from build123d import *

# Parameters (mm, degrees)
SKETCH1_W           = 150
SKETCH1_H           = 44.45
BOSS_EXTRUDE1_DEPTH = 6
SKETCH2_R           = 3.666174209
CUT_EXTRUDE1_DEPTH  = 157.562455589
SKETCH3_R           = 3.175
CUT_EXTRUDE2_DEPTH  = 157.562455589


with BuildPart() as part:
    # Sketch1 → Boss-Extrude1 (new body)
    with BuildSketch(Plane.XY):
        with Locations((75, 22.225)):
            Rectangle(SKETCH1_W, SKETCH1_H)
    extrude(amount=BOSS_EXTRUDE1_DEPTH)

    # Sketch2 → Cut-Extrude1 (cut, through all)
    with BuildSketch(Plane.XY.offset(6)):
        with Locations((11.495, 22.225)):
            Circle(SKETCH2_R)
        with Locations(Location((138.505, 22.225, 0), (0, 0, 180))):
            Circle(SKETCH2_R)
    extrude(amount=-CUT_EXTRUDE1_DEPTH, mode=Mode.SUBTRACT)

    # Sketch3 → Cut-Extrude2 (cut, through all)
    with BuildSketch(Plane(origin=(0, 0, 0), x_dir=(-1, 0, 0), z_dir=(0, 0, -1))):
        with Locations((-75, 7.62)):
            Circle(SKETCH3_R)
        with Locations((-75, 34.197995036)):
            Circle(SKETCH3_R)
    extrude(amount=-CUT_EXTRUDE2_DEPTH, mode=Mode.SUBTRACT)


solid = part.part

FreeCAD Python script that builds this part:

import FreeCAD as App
import Part
import Sketcher

V = App.Vector
Q = App.Units.Quantity


def add_polygon(sketch, points):
    """Adds a closed chain of lines whose ends are joined by coincident constraints."""
    first, n = sketch.GeometryCount, len(points)
    for a, b in zip(points, points[1:] + points[:1]):
        sketch.addGeometry(Part.LineSegment(App.Vector(*a, 0), App.Vector(*b, 0)), False)
    for i in range(n):
        sketch.addConstraint(Sketcher.Constraint("Coincident", first + i, 2, first + (i + 1) % n, 1))

doc = App.newDocument("Part")
params = doc.addObject("Spreadsheet::Sheet", "Params")
for row, (alias, value) in enumerate([
    ("sketch1_width", "150 mm"),
    ("sketch1_height", "44.45 mm"),
    ("pad1_length", "6 mm"),
    ("sketch3_diameter", "6.35 mm"),
], start=1):
    params.set(f"A{row}", alias)
    params.set(f"B{row}", "=" + value)
    params.setAlias(f"B{row}", alias)

body = doc.addObject("PartDesign::Body", "Body")

sketch1 = body.newObject("Sketcher::SketchObject", "Sketch")
sketch1.AttachmentSupport = (doc.getObject("XY_Plane"), [""])
sketch1.MapMode = "FlatFace"
add_polygon(sketch1, [(0, 44), (0, 0), (150, 0), (150, 44)])
sketch1.addConstraint([
    Sketcher.Constraint("Vertical", 0),
    Sketcher.Constraint("Horizontal", 1),
    Sketcher.Constraint("Vertical", 2),
    Sketcher.Constraint("Horizontal", 3),
    Sketcher.Constraint("Coincident", 0, 2, -1, 1),
    Sketcher.Constraint("DistanceX", 1, 1, 1, 2, Q("150 mm")),
    Sketcher.Constraint("DistanceY", 0, 2, 0, 1, Q("44.45 mm")),
])
sketch1.setExpression("Constraints[9]", "Params.sketch1_width")
sketch1.setExpression("Constraints[10]", "Params.sketch1_height")
pad1 = body.newObject("PartDesign::Pad", "Pad")
pad1.Profile = sketch1
pad1.setExpression("Length", "Params.pad1_length")

sketch2 = body.newObject("Sketcher::SketchObject", "Sketch001")
sketch2.AttachmentSupport = (doc.getObject("XY_Plane"), [""])
sketch2.MapMode = "FlatFace"
sketch2.AttachmentOffset = App.Placement(V(0, 0, 6), App.Rotation())
sketch2.addGeometry([
    Part.Circle(V(11.5, 22.2, 0), V(0, 0, 1), 3.7),
    Part.Circle(V(138.5, 22.2, 0), V(0, 0, 1), 3.7),
], False)
sketch2.addConstraint([
    Sketcher.Constraint("Equal", 0, 1),
    Sketcher.Constraint("Horizontal", 0, 3, 1, 3),
    Sketcher.Constraint("Diameter", 0, Q("7.332348 mm")),
    Sketcher.Constraint("DistanceX", 0, 3, 1, 3, Q("127.01 mm")),
    Sketcher.Constraint("DistanceX", -1, 1, 0, 3, Q("11.495 mm")),
    Sketcher.Constraint("DistanceY", -1, 1, 0, 3, Q("22.225 mm")),
])
pocket1 = body.newObject("PartDesign::Pocket", "Pocket")
pocket1.Profile = sketch2
pocket1.Type = "ThroughAll"

sketch3 = body.newObject("Sketcher::SketchObject", "Sketch002")
sketch3.AttachmentSupport = (doc.getObject("XY_Plane"), [""])
sketch3.MapMode = "FlatFace"
sketch3.addGeometry([
    Part.Circle(V(75, 7.6, 0), V(0, 0, 1), 3.2),
    Part.Circle(V(75, 34.2, 0), V(0, 0, 1), 3.2),
], False)
sketch3.addConstraint([
    Sketcher.Constraint("Equal", 0, 1),
    Sketcher.Constraint("Vertical", 0, 3, 1, 3),
    Sketcher.Constraint("Diameter", 0, Q("6.35 mm")),
    Sketcher.Constraint("DistanceX", -1, 1, 0, 3, Q("75 mm")),
    Sketcher.Constraint("DistanceY", -1, 1, 0, 3, Q("7.62 mm")),
    Sketcher.Constraint("DistanceY", -1, 1, 1, 3, Q("34.197995 mm")),
])
sketch3.setExpression("Constraints[2]", "Params.sketch3_diameter")
pocket2 = body.newObject("PartDesign::Pocket", "Pocket001")
pocket2.Profile = sketch3
pocket2.Type = "ThroughAll"
pocket2.Reversed = True

doc.recompute()
